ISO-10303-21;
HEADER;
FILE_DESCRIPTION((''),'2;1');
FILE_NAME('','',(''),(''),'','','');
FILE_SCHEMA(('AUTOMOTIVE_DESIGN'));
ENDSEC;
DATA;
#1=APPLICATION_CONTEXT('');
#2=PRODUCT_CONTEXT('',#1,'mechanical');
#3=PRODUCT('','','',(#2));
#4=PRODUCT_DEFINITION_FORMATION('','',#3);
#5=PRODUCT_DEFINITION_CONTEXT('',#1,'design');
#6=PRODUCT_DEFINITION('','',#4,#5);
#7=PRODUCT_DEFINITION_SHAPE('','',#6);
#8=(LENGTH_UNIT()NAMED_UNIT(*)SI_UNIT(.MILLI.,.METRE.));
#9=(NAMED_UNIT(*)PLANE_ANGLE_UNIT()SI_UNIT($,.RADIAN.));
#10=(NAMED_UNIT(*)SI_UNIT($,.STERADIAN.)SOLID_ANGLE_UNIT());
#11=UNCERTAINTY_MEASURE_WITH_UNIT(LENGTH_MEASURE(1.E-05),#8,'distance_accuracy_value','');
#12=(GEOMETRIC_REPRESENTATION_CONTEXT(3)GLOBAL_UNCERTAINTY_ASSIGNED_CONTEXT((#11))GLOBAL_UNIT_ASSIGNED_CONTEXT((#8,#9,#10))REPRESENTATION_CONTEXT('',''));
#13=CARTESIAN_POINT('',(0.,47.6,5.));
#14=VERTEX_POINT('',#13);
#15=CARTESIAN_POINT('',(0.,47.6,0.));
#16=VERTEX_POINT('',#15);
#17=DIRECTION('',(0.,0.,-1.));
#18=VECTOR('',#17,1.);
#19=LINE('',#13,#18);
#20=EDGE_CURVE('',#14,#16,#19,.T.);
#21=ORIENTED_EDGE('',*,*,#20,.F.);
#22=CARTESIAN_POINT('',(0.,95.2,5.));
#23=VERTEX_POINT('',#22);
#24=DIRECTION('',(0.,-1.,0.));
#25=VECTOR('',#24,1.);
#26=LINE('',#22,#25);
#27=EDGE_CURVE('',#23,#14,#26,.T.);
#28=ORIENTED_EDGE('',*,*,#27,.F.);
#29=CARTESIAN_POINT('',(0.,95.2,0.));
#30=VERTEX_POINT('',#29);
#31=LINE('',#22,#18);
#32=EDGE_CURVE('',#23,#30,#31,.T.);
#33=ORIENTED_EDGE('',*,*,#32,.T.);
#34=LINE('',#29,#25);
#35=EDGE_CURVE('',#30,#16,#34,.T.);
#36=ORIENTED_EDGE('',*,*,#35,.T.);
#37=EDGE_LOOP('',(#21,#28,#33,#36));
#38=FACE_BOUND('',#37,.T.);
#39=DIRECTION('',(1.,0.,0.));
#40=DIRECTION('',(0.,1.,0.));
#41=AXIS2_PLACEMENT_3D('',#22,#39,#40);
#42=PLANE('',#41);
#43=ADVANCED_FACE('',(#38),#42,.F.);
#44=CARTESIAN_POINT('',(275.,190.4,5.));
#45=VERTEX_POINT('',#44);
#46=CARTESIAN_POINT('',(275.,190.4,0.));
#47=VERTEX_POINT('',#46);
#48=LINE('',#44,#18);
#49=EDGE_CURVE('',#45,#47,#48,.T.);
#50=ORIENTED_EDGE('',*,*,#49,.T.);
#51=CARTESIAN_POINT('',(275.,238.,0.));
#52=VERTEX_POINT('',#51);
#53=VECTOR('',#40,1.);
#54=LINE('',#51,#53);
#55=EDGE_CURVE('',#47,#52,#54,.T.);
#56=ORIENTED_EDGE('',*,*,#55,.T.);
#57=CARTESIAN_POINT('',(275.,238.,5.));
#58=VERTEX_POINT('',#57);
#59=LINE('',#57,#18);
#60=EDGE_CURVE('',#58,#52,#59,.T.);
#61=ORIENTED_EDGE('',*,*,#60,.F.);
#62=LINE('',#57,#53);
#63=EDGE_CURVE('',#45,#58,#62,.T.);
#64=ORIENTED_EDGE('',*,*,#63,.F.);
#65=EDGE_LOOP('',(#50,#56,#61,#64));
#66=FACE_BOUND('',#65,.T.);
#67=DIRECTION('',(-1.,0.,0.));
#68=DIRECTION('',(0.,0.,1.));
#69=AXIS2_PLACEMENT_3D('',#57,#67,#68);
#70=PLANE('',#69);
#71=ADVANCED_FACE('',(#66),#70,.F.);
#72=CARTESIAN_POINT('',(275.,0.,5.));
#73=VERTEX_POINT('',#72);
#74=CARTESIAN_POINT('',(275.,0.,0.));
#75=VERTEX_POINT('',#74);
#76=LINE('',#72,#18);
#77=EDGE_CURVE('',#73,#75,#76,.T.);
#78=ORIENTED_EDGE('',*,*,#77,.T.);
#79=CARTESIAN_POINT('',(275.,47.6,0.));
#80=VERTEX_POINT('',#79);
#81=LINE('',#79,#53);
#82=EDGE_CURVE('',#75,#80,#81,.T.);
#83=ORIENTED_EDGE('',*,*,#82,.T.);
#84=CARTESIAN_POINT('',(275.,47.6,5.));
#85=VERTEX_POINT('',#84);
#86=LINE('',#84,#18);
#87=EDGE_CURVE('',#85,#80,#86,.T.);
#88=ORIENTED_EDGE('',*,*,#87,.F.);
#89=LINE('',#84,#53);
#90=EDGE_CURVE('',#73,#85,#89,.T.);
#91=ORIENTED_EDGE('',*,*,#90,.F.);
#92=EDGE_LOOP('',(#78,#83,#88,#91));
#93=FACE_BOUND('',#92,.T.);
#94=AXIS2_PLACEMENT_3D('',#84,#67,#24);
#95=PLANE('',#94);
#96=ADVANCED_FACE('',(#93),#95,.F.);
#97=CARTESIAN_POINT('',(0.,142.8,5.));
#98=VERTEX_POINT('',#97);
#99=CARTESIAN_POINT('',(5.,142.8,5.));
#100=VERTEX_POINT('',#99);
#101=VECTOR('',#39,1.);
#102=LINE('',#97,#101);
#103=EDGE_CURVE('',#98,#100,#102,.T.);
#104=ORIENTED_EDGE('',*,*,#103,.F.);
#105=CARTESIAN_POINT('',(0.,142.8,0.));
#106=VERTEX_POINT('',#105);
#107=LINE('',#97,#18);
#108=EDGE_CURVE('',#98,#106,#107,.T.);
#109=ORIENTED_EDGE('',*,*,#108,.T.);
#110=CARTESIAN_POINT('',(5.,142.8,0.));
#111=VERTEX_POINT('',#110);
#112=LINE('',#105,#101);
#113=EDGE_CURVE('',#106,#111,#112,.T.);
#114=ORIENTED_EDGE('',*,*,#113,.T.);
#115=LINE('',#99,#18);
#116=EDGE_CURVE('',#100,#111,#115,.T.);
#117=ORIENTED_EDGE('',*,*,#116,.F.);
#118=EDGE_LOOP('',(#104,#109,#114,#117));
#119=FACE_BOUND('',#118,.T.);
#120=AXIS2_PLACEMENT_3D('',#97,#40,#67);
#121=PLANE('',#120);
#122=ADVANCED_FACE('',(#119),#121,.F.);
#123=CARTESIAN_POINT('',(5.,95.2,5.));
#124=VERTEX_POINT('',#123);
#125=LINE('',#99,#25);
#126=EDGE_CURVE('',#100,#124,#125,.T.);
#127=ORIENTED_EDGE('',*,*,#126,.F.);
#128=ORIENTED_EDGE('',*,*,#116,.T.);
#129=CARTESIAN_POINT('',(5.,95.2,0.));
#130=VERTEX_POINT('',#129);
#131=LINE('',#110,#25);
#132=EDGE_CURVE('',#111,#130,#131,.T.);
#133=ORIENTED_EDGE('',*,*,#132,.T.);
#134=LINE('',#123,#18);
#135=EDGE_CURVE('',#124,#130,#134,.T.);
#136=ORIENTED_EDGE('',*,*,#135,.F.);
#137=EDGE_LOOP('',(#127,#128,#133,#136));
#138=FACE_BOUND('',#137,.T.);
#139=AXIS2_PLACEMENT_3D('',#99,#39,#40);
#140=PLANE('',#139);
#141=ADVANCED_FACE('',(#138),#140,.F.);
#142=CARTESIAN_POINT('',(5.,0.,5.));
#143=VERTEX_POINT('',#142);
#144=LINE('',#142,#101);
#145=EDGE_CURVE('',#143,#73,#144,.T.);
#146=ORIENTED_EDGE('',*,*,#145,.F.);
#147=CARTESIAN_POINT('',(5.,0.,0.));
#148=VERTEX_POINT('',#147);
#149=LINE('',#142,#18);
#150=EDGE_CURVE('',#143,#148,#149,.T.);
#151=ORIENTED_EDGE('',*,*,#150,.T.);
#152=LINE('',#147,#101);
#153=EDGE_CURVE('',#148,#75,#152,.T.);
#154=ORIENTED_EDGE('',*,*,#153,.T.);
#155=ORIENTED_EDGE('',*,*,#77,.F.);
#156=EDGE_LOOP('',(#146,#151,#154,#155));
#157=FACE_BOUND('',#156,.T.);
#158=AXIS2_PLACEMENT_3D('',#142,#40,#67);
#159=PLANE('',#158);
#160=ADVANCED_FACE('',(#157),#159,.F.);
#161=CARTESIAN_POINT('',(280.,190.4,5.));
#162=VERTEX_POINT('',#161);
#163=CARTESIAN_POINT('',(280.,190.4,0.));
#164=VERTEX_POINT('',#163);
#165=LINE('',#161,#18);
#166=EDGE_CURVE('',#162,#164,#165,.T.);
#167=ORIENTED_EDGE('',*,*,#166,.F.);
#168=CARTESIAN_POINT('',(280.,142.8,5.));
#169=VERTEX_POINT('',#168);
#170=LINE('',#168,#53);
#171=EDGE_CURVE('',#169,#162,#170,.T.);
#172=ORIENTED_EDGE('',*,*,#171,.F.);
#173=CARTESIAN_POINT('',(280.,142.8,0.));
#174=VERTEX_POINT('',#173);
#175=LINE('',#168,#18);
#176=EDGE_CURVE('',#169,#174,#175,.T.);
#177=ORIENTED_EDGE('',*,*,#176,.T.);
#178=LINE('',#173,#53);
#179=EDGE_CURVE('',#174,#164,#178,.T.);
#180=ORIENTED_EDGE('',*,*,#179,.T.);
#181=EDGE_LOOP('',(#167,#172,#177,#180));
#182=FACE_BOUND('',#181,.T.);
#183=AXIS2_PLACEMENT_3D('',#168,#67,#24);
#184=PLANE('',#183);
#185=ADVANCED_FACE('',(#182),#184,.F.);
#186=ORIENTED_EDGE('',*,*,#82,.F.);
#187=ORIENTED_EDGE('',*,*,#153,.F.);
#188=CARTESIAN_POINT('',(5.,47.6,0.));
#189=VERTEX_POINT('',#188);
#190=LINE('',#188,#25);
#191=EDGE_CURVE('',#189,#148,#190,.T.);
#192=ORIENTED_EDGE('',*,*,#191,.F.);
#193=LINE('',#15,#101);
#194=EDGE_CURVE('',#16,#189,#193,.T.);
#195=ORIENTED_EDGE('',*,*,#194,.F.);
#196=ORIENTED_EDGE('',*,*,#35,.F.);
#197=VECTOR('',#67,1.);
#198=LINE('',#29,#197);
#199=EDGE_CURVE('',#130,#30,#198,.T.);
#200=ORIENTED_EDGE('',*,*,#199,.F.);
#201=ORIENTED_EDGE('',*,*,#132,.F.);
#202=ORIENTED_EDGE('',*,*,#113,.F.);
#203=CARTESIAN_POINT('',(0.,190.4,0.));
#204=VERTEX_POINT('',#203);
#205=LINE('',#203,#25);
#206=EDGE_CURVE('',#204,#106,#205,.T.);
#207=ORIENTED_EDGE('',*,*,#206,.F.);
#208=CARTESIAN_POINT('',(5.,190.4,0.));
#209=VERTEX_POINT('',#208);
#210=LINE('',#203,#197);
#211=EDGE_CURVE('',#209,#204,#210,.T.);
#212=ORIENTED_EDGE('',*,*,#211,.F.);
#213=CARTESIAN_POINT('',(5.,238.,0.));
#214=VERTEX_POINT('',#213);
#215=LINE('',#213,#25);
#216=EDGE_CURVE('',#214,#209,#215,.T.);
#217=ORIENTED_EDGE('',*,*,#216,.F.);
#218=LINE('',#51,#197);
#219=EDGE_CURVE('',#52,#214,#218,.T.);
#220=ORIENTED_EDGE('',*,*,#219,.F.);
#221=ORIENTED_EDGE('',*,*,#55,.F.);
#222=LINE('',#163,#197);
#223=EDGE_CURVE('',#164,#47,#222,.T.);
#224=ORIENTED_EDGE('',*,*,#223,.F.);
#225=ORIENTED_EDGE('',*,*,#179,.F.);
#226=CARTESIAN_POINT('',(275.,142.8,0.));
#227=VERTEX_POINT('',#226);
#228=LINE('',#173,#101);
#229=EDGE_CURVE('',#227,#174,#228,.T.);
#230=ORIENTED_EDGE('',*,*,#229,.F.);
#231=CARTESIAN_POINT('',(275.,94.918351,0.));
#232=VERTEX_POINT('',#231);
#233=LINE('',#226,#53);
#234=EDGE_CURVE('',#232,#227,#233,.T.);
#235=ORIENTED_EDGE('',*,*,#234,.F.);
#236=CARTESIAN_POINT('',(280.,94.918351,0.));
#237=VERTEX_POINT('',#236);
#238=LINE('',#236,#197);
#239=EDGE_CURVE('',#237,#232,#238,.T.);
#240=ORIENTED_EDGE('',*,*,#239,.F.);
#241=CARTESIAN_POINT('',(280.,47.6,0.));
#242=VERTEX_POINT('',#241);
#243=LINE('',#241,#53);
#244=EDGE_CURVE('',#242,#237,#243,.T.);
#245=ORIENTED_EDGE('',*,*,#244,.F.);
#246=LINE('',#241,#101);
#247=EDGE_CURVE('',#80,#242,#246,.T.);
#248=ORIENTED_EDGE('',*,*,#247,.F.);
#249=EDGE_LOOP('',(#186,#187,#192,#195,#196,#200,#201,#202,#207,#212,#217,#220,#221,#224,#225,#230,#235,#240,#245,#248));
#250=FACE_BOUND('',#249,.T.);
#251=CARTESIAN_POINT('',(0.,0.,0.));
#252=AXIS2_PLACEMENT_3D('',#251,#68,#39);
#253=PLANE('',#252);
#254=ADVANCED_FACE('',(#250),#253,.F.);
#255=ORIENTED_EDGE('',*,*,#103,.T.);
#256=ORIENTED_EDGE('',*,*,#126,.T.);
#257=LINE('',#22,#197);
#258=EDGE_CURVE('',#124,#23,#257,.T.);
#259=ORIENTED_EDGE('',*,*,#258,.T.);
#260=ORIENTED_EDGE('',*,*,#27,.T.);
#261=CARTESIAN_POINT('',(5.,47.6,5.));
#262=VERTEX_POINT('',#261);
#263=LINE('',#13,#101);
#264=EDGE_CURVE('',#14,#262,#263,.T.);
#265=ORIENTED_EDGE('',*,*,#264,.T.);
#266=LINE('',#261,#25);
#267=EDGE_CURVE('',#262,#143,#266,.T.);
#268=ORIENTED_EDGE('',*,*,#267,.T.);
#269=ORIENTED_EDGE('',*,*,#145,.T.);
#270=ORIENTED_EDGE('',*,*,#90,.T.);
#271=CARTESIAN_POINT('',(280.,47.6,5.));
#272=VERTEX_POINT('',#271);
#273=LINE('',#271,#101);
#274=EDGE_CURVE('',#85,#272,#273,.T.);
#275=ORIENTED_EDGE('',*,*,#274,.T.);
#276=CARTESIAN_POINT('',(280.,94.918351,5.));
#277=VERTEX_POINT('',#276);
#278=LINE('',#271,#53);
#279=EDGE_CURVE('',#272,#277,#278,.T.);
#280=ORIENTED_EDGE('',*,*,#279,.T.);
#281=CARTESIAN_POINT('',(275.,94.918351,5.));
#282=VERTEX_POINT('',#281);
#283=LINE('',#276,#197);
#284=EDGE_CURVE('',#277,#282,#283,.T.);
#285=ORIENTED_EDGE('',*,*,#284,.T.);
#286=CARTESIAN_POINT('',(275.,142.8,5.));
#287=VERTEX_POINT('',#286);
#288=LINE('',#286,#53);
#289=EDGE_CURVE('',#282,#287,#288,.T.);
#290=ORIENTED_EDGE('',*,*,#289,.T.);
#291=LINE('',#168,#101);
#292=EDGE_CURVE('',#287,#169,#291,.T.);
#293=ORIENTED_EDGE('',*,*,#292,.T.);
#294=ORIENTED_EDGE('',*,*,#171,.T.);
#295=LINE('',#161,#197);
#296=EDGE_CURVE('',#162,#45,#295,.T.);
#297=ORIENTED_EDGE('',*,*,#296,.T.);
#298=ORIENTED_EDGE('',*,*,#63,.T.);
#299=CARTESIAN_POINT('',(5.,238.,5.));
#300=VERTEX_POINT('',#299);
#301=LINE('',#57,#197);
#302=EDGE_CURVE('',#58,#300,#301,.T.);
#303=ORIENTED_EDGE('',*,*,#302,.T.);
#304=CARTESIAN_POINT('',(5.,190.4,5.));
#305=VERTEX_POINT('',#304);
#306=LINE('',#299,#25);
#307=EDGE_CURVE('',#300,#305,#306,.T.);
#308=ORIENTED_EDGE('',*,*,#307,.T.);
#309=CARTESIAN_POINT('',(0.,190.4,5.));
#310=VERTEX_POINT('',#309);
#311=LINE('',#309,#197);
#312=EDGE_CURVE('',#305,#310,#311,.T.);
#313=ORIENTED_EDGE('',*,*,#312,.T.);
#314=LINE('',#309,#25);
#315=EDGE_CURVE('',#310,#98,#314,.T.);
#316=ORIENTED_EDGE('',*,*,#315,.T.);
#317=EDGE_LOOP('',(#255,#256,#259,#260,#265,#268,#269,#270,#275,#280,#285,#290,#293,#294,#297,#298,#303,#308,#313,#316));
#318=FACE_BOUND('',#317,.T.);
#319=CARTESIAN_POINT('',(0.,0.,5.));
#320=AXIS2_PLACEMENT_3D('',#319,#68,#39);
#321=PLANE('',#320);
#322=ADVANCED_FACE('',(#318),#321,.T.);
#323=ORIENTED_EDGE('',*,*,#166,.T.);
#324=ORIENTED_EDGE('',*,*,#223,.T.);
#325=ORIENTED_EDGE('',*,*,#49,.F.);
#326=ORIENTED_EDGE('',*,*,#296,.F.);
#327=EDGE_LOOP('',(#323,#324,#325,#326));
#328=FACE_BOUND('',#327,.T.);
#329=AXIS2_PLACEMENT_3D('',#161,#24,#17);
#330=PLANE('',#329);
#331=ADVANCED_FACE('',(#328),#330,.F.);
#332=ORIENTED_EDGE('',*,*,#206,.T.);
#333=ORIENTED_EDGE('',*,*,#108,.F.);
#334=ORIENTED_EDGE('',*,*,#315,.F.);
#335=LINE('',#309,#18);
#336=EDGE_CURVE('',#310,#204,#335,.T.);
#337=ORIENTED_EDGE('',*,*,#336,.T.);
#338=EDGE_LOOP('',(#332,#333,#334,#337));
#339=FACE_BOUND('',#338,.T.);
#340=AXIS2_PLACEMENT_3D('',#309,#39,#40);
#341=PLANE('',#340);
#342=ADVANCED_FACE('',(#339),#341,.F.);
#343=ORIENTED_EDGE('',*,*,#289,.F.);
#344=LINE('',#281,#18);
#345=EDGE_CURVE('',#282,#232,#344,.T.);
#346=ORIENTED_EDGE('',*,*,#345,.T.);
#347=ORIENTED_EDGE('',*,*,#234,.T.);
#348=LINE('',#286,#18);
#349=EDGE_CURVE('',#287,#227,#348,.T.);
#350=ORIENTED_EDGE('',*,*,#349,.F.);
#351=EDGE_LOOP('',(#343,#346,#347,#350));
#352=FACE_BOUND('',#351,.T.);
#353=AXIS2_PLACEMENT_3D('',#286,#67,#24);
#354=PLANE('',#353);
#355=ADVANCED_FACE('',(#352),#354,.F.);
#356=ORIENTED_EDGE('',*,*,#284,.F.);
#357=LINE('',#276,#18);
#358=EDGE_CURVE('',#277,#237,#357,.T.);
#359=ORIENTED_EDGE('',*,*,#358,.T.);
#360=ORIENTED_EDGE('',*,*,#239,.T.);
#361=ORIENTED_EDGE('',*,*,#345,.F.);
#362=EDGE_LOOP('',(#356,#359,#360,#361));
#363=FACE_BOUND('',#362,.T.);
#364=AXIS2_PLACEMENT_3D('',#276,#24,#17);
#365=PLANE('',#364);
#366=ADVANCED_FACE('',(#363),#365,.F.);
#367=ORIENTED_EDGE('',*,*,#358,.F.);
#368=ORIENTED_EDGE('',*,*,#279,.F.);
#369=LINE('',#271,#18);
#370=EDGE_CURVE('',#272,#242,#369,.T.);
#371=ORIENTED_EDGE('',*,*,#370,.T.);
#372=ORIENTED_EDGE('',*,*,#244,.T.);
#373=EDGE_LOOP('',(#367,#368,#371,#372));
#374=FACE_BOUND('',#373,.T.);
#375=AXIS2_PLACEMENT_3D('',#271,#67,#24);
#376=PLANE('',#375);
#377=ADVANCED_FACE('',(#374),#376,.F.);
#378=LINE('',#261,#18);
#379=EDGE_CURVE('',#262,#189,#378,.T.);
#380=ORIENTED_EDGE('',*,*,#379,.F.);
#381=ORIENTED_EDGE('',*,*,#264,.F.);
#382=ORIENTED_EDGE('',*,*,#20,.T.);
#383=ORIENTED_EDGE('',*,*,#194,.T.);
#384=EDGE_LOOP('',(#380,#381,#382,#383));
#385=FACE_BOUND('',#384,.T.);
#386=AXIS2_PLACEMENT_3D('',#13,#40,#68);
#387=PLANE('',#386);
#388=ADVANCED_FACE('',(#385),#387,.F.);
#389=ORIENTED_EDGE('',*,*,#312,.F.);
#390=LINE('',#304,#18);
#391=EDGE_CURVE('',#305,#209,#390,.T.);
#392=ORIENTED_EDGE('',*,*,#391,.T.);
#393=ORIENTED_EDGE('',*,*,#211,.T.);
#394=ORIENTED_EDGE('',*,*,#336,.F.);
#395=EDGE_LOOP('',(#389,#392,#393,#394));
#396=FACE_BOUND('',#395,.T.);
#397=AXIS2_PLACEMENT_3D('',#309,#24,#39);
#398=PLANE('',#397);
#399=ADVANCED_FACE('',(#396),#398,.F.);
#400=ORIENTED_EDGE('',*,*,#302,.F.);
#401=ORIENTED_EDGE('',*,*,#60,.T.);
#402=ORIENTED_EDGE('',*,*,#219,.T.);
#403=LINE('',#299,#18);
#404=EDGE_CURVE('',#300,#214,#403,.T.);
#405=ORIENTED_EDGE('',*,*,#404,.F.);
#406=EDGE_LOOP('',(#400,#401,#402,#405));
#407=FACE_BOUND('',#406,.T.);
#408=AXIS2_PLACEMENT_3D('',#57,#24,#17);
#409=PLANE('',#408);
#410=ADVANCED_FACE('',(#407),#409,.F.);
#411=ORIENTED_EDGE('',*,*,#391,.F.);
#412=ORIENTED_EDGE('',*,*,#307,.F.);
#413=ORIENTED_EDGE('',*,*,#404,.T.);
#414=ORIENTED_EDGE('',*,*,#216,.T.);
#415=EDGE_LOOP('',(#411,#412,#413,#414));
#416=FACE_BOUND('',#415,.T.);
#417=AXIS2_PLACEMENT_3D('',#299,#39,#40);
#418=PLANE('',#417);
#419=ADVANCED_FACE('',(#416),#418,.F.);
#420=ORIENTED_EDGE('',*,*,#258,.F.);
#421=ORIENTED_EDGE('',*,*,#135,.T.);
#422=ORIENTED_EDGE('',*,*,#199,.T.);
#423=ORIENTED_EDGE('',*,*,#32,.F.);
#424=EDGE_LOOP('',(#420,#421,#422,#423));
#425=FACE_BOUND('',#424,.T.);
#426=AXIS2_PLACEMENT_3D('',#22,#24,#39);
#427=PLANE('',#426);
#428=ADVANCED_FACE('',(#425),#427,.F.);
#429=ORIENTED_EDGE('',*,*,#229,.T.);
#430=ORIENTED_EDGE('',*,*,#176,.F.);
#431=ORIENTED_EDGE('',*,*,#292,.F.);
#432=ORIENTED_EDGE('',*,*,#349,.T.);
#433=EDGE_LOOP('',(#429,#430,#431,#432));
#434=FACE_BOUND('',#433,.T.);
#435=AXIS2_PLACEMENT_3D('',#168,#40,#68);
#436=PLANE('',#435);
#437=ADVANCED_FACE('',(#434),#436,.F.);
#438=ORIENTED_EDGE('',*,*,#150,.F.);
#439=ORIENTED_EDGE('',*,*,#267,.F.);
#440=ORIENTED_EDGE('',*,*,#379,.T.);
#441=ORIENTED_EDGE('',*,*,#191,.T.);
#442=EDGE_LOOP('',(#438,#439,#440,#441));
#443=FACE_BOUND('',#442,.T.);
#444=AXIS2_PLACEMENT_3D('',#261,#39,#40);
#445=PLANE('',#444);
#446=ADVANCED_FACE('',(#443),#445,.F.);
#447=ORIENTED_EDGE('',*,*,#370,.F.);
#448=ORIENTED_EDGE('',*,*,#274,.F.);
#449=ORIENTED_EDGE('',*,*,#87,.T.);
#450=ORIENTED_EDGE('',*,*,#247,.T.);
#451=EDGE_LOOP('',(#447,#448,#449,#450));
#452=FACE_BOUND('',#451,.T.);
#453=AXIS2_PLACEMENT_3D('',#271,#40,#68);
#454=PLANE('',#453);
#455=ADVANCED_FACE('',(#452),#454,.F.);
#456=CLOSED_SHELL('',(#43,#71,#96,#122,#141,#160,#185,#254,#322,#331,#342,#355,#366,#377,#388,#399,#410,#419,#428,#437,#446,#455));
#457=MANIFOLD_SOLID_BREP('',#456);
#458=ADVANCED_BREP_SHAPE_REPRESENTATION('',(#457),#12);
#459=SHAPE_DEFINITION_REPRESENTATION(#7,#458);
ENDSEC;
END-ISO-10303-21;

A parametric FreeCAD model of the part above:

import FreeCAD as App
import Part
import Sketcher
from FreeCAD import Vector


def add_polygon(sketch, points):
    """Adds a closed chain of lines whose ends are joined by coincident constraints."""
    first, n = sketch.GeometryCount, len(points)
    for a, b in zip(points, points[1:] + points[:1]):
        sketch.addGeometry(Part.LineSegment(App.Vector(*a, 0), App.Vector(*b, 0)), False)
    for i in range(n):
        sketch.addConstraint(Sketcher.Constraint("Coincident", first + i, 2, first + (i + 1) % n, 1))

doc = App.newDocument("Part")
params = doc.addObject("Spreadsheet::Sheet", "Params")
for row, (alias, value) in enumerate([
    ("sketch1_width", "270 mm"),
    ("sketch1_width2", "5 mm"),
    ("sketch1_height", "47.6 mm"),
    ("pad1_length", "5 mm"),
], start=1):
    params.set(f"A{row}", alias)
    params.set(f"B{row}", "=" + value)
    params.setAlias(f"B{row}", alias)

body = doc.addObject("PartDesign::Body", "Body")

# Sketch on XY plane
sketch1 = body.newObject("Sketcher::SketchObject", "Sketch")
sketch1.AttachmentSupport = (doc.getObject("XY_Plane"), [""])
sketch1.MapMode = "FlatFace"
add_polygon(sketch1, [(275, 238), (5, 238), (5, 190), (0, 190), (0, 143), (5, 143), (5, 95), (0, 95), (0, 48), (5, 48), (5, 0), (275, 0), (275, 48), (280, 48), (280, 95), (275, 95), (275, 143), (280, 143), (280, 190), (275, 190)])  # lines 0-19
sketch1.addConstraint(Sketcher.Constraint("Horizontal", 0))
sketch1.addConstraint(Sketcher.Constraint("Vertical", 1))
sketch1.addConstraint(Sketcher.Constraint("Horizontal", 2))
sketch1.addConstraint(Sketcher.Constraint("Vertical", 3))
sketch1.addConstraint(Sketcher.Constraint("Horizontal", 4))
sketch1.addConstraint(Sketcher.Constraint("Vertical", 5))
sketch1.addConstraint(Sketcher.Constraint("Horizontal", 6))
sketch1.addConstraint(Sketcher.Constraint("Vertical", 7))
sketch1.addConstraint(Sketcher.Constraint("Horizontal", 8))
sketch1.addConstraint(Sketcher.Constraint("Vertical", 9))
sketch1.addConstraint(Sketcher.Constraint("Horizontal", 10))
sketch1.addConstraint(Sketcher.Constraint("Vertical", 11))
sketch1.addConstraint(Sketcher.Constraint("Horizontal", 12))
sketch1.addConstraint(Sketcher.Constraint("Vertical", 13))
sketch1.addConstraint(Sketcher.Constraint("Horizontal", 14))
sketch1.addConstraint(Sketcher.Constraint("Vertical", 15))
sketch1.addConstraint(Sketcher.Constraint("Horizontal", 16))
sketch1.addConstraint(Sketcher.Constraint("Vertical", 17))
sketch1.addConstraint(Sketcher.Constraint("Horizontal", 18))
sketch1.addConstraint(Sketcher.Constraint("Vertical", 19))
sketch1.addConstraint(Sketcher.Constraint("PointOnObject", 2, 2, -2))
sketch1.addConstraint(Sketcher.Constraint("PointOnObject", 6, 2, -2))
sketch1.addConstraint(Sketcher.Constraint("PointOnObject", 9, 2, -1))
sketch1.addConstraint(Sketcher.Constraint("Horizontal", 8, 2, 11, 2))
sketch1.addConstraint(Sketcher.Constraint("Horizontal", 4, 2, 15, 2))
sketch1.addConstraint(Sketcher.Constraint("Horizontal", 2, 2, 17, 2))
sketch1.addConstraint(Sketcher.Constraint("Vertical", 1, 2, 4, 2))
sketch1.addConstraint(Sketcher.Constraint("Vertical", 5, 2, 8, 2))
sketch1.addConstraint(Sketcher.Constraint("Vertical", 11, 2, 14, 2))
sketch1.addConstraint(Sketcher.Constraint("Vertical", 13, 2, 16, 2))
sketch1.addConstraint(Sketcher.Constraint("Vertical", 15, 2, 18, 2))
sketch1.addConstraint(Sketcher.Constraint("Equal", 8, 12))
sketch1.addConstraint(Sketcher.Constraint("Equal", 1, 3))
sketch1.addConstraint(Sketcher.Constraint("Equal", 3, 5))
sketch1.addConstraint(Sketcher.Constraint("Equal", 5, 7))
sketch1.addConstraint(Sketcher.Constraint("Equal", 7, 9))
sketch1.addConstraint(Sketcher.Constraint("DistanceX", 0, 2, 0, 1, 270.0))
sketch1.addConstraint(Sketcher.Constraint("DistanceX", 2, 2, 2, 1, 5.0))
sketch1.addConstraint(Sketcher.Constraint("DistanceY", 1, 2, 1, 1, 47.6))
sketch1.addConstraint(Sketcher.Constraint("DistanceY", 13, 1, 13, 2, 47.318351))
sketch1.setExpression("Constraints[56]", "Params.sketch1_width")
sketch1.setExpression("Constraints[57]", "Params.sketch1_width2")
sketch1.setExpression("Constraints[58]", "Params.sketch1_height")
pad1 = body.newObject("PartDesign::Pad", "Pad")
pad1.Profile = sketch1
pad1.setExpression("Length", "Params.pad1_length")

doc.recompute()
